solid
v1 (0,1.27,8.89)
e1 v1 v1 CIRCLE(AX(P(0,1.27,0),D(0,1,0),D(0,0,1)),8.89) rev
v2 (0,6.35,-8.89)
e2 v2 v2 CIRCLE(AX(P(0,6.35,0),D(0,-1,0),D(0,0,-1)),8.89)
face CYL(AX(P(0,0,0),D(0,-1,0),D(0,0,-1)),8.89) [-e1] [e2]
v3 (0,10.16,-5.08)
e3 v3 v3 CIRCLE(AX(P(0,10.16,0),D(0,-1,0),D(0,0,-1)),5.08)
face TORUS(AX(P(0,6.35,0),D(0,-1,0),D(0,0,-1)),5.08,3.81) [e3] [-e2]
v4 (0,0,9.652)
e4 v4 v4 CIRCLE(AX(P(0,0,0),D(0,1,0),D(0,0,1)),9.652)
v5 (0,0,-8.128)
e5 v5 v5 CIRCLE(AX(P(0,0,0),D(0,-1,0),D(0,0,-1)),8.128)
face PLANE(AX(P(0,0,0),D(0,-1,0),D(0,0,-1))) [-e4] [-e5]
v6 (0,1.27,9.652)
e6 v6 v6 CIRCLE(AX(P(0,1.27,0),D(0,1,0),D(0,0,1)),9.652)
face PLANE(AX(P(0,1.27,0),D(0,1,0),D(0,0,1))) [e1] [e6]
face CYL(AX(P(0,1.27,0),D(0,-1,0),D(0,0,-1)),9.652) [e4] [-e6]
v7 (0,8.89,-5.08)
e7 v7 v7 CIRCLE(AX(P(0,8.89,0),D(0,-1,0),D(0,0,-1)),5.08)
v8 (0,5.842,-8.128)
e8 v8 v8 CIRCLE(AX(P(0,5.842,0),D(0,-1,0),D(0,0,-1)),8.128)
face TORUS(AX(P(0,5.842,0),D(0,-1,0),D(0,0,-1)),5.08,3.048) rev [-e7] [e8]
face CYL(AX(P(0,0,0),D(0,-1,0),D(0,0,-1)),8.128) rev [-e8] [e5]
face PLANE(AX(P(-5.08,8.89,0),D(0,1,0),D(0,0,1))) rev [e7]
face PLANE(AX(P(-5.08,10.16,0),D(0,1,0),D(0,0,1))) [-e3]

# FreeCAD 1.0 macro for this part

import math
import FreeCAD as App
import Part
import Sketcher
from FreeCAD import Vector
Q = App.Units.Quantity

doc = App.newDocument("Part")
body = doc.addObject("PartDesign::Body", "Body")

# Sketch on XY plane
sketch1 = body.newObject("Sketcher::SketchObject", "Sketch")
sketch1.AttachmentSupport = (doc.getObject("XY_Plane"), [""])
sketch1.MapMode = "FlatFace"
sketch1.addGeometry([
    Part.LineSegment(Vector(0, 0, 0), Vector(8.9, 0, 0)),  # 0
    Part.LineSegment(Vector(8.9, 0, 0), Vector(8.9, 6.3, 0)),  # 1
    Part.ArcOfCircle(Part.Circle(Vector(5.1, 6.3, 0), Vector(0, 0, 1), 3.8), math.radians(0), math.radians(90)),  # 2
    Part.LineSegment(Vector(5.1, 10.2, 0), Vector(0, 10.2, 0)),  # 3
    Part.LineSegment(Vector(0, 10.2, 0), Vector(0, 0, 0)),  # 4
], False)
sketch1.addConstraint([
    Sketcher.Constraint("Coincident", 0, 2, 1, 1),
    Sketcher.Constraint("Tangent", 1, 2, 2, 1),
    Sketcher.Constraint("Tangent", 2, 2, 3, 1),
    Sketcher.Constraint("Coincident", 3, 2, 4, 1),
    Sketcher.Constraint("Coincident", 4, 2, 0, 1),
    Sketcher.Constraint("Horizontal", 0),
    Sketcher.Constraint("Vertical", 1),
    Sketcher.Constraint("Horizontal", 3),
    Sketcher.Constraint("Vertical", 4),
    Sketcher.Constraint("Coincident", 4, 2, -1, 1),
    Sketcher.Constraint("Radius", 2, Q("0.15 in")),
    Sketcher.Constraint("DistanceX", 3, 2, 3, 1, Q("0.2 in")),
    Sketcher.Constraint("DistanceY", 4, 2, 4, 1, Q("0.4 in")),
])
revolution = body.newObject("PartDesign::Revolution", "Revolution")
revolution.Profile = sketch1
revolution.ReferenceAxis = (sketch1, ["V_Axis"])
revolution.Angle = 180

# Sketch on XY plane
sketch2 = body.newObject("Sketcher::SketchObject", "Sketch001")
sketch2.AttachmentSupport = (doc.getObject("XY_Plane"), [""])
sketch2.MapMode = "FlatFace"
sketch2.addGeometry([
    Part.LineSegment(Vector(0, 0, 0), Vector(8.1, 0, 0)),  # 0
    Part.LineSegment(Vector(8.1, 0, 0), Vector(8.1, 5.8, 0)),  # 1
    Part.ArcOfCircle(Part.Circle(Vector(5.1, 5.8, 0), Vector(0, 0, 1), 3), math.radians(0), math.radians(90)),  # 2
    Part.LineSegment(Vector(5.1, 8.9, 0), Vector(0, 8.9, 0)),  # 3
    Part.LineSegment(Vector(0, 8.9, 0), Vector(0, 0, 0)),  # 4
], False)
sketch2.addConstraint([
    Sketcher.Constraint("Coincident", 0, 2, 1, 1),
    Sketcher.Constraint("Tangent", 1, 2, 2, 1),
    Sketcher.Constraint("Tangent", 2, 2, 3, 1),
    Sketcher.Constraint("Coincident", 3, 2, 4, 1),
    Sketcher.Constraint("Coincident", 4, 2, 0, 1),
    Sketcher.Constraint("Horizontal", 0),
    Sketcher.Constraint("Vertical", 1),
    Sketcher.Constraint("Horizontal", 3),
    Sketcher.Constraint("Vertical", 4),
    Sketcher.Constraint("Coincident", 4, 2, -1, 1),
    Sketcher.Constraint("Radius", 2, Q("0.12 in")),
    Sketcher.Constraint("DistanceX", 3, 2, 3, 1, Q("0.2 in")),
    Sketcher.Constraint("DistanceY", 1, 1, 1, 2, Q("0.23 in")),
])
groove = body.newObject("PartDesign::Groove", "Groove")
groove.Profile = sketch2
groove.ReferenceAxis = (sketch2, ["V_Axis"])
groove.Angle = 180
body2 = doc.addObject("PartDesign::Body", "Body001")
doc.recompute()

body2.BaseFeature = body
doc.recompute()

mirroring = doc.addObject("Part::Mirroring", "Mirroring")
mirroring.Source = body
mirroring.Base = Vector(0, 7.378792, 0)
mirroring.Normal = Vector(0, 0, 1)
body3 = doc.addObject("PartDesign::Body", "Body002")
body3.BaseFeature = mirroring
boolean = body2.newObject("PartDesign::Boolean", "Boolean")
boolean.Type = "Fuse"
boolean.addObjects([body3])
doc.recompute()

# Sketch on XZ plane
sketch3 = body2.newObject("Sketcher::SketchObject", "Sketch002")
sketch3.AttachmentSupport = (doc.getObject("XZ_Plane001"), [""])
sketch3.MapMode = "FlatFace"
sketch3.AttachmentOffset = App.Placement(Vector(0, 0, -0.05 * 25.4), App.Rotation())
sketch3.addGeometry([
    Part.Circle(Vector(0, 0, 0), Vector(0, 0, 1), 10),
    Part.Circle(Vector(0, 0, 0), Vector(0, 0, 1), 9),
], False)
sketch3.addConstraint([
    Sketcher.Constraint("Coincident", 0, 3, -1, 1),
    Sketcher.Constraint("Coincident", 1, 3, -1, 1),
    Sketcher.Constraint("Diameter", 1, Q("0.7 in")),
    Sketcher.Constraint("Diameter", 0, Q("0.76 in")),
])
pad1 = body2.newObject("PartDesign::Pad", "Pad")
pad1.Profile = sketch3
pad1.Length = Q("0.05 in")
mirroring.Visibility = False

doc.recompute()
